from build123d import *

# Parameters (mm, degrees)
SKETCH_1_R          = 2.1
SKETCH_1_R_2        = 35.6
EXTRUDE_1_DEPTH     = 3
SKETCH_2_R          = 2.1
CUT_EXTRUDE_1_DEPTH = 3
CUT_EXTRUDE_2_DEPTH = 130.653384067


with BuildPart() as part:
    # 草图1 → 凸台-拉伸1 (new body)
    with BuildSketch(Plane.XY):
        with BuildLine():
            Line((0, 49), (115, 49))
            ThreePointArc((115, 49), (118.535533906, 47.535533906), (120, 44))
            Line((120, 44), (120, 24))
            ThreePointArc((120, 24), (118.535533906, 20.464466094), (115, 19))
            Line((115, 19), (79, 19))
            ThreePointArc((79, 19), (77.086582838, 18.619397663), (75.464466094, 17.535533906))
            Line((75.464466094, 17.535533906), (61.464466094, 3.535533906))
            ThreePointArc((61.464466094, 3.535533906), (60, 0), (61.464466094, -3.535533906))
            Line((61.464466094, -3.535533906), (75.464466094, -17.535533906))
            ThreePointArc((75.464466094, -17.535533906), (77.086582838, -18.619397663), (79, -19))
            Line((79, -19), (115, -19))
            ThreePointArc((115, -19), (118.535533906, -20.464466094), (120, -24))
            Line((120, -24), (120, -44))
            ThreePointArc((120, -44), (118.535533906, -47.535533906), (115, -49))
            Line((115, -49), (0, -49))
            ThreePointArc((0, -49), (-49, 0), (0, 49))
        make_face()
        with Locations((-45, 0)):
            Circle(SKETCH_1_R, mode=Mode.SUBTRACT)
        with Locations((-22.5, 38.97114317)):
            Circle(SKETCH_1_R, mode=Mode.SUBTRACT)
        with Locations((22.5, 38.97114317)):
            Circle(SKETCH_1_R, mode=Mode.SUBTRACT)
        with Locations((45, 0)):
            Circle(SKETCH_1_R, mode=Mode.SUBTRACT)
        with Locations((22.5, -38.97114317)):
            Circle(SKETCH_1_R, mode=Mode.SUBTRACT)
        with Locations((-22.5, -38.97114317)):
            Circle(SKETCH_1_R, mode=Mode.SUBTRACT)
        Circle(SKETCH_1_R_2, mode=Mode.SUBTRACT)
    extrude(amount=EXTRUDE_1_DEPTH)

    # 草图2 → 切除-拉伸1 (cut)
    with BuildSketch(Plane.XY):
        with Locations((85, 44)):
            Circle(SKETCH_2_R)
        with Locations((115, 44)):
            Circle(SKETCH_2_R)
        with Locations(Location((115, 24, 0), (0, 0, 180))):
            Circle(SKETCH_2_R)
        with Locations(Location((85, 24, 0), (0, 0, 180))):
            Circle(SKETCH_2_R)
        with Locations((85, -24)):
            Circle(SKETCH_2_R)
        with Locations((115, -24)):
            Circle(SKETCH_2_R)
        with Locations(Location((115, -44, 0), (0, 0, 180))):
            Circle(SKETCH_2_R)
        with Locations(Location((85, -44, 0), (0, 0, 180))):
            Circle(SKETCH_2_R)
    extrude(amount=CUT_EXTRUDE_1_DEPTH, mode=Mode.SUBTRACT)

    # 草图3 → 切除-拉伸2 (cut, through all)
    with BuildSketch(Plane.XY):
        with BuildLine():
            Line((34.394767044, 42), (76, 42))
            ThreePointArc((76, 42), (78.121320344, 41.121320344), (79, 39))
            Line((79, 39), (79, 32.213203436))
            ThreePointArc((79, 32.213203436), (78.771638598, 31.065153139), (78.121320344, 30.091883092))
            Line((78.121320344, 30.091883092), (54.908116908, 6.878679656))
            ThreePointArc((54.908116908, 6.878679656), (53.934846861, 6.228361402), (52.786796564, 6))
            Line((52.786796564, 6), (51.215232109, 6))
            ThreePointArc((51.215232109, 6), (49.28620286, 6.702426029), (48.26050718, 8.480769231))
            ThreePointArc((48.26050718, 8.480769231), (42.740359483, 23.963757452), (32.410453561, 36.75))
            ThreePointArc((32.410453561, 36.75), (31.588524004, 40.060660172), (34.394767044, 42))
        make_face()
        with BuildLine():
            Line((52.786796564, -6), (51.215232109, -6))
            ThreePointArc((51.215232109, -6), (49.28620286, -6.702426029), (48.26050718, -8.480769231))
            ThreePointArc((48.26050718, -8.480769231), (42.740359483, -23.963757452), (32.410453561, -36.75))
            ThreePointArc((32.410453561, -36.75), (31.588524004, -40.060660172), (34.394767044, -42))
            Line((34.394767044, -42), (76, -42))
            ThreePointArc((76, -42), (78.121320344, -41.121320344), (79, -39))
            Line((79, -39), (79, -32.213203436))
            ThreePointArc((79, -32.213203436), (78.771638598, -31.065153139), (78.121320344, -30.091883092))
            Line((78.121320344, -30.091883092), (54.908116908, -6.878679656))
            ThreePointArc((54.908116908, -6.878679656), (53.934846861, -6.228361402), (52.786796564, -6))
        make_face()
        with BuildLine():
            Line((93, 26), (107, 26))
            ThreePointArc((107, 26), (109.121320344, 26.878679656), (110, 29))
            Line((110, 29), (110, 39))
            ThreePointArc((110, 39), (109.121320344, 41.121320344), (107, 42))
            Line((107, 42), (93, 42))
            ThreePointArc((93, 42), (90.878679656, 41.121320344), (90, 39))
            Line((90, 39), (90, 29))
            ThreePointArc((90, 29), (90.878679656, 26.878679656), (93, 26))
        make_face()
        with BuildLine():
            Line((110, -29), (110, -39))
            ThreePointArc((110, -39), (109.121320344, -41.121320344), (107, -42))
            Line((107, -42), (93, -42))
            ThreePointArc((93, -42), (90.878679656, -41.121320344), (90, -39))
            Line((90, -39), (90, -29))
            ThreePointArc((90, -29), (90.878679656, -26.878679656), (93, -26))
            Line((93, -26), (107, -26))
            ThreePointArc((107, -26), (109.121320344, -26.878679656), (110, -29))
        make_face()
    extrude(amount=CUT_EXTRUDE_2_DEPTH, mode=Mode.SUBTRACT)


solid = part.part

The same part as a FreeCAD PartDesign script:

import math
import FreeCAD as App
import Part
import Sketcher

V = App.Vector
Q = App.Units.Quantity

doc = App.newDocument("Part")
body = doc.addObject("PartDesign::Body", "Body")

sketch1 = body.newObject("Sketcher::SketchObject", "Sketch")
sketch1.AttachmentSupport = (doc.getObject("XY_Plane"), [""])
sketch1.MapMode = "FlatFace"
sketch1.addGeometry(Part.LineSegment(V(115, 49, 0), V(0, 49, 0)), False)
sketch1.addGeometry(Part.ArcOfCircle(Part.Circle(V(0, 0, 0), V(0, 0, 1), 49), math.radians(90), math.radians(270)), False)
sketch1.addGeometry(Part.LineSegment(V(0, -49, 0), V(115, -49, 0)), False)
sketch1.addGeometry(Part.ArcOfCircle(Part.Circle(V(115, -44, 0), V(0, 0, 1), 5), math.radians(-90), math.radians(0)), False)
sketch1.addGeometry(Part.LineSegment(V(120, -44, 0), V(120, -24, 0)), False)
sketch1.addGeometry(Part.ArcOfCircle(Part.Circle(V(115, -24, 0), V(0, 0, 1), 5), math.radians(0), math.radians(90)), False)
sketch1.addGeometry(Part.LineSegment(V(115, -19, 0), V(79, -19, 0)), False)
sketch1.addGeometry(Part.ArcOfCircle(Part.Circle(V(79, -14, 0), V(0, 0, 1), 5), math.radians(-135), math.radians(-90)), False)
sketch1.addGeometry(Part.LineSegment(V(75.5, -17.5, 0), V(61.5, -3.5, 0)), False)
sketch1.addGeometry(Part.ArcOfCircle(Part.Circle(V(65, 0, 0), V(0, 0, 1), 5), math.radians(135), math.radians(225)), False)
sketch1.addGeometry(Part.LineSegment(V(61.5, 3.5, 0), V(75.5, 17.5, 0)), False)
sketch1.addGeometry(Part.ArcOfCircle(Part.Circle(V(79, 14, 0), V(0, 0, 1), 5), math.radians(90), math.radians(135)), False)
sketch1.addGeometry(Part.LineSegment(V(79, 19, 0), V(115, 19, 0)), False)
sketch1.addGeometry(Part.ArcOfCircle(Part.Circle(V(115, 24, 0), V(0, 0, 1), 5), math.radians(-90), math.radians(0)), False)
sketch1.addGeometry(Part.LineSegment(V(120, 24, 0), V(120, 44, 0)), False)
sketch1.addGeometry(Part.ArcOfCircle(Part.Circle(V(115, 44, 0), V(0, 0, 1), 5), math.radians(0), math.radians(90)), False)
sketch1.addGeometry(Part.Circle(V(22.5, -39, 0), V(0, 0, 1), 2.1), False)
sketch1.addGeometry(Part.Circle(V(-22.5, -39, 0), V(0, 0, 1), 2.1), False)
sketch1.addGeometry(Part.Circle(V(45, 0, 0), V(0, 0, 1), 2.1), False)
sketch1.addGeometry(Part.Circle(V(0, 0, 0), V(0, 0, 1), 35.6), False)
sketch1.addGeometry(Part.Circle(V(22.5, 39, 0), V(0, 0, 1), 2.1), False)
sketch1.addGeometry(Part.Circle(V(-45, 0, 0), V(0, 0, 1), 2.1), False)
sketch1.addGeometry(Part.Circle(V(-22.5, 39, 0), V(0, 0, 1), 2.1), False)
sketch1.addConstraint(Sketcher.Constraint("Tangent", 0, 2, 1, 1))
sketch1.addConstraint(Sketcher.Constraint("Tangent", 1, 2, 2, 1))
sketch1.addConstraint(Sketcher.Constraint("Tangent", 2, 2, 3, 1))
sketch1.addConstraint(Sketcher.Constraint("Tangent", 3, 2, 4, 1))
sketch1.addConstraint(Sketcher.Constraint("Tangent", 4, 2, 5, 1))
sketch1.addConstraint(Sketcher.Constraint("Tangent", 5, 2, 6, 1))
sketch1.addConstraint(Sketcher.Constraint("Tangent", 6, 2, 7, 2))
sketch1.addConstraint(Sketcher.Constraint("Tangent", 7, 1, 8, 1))
sketch1.addConstraint(Sketcher.Constraint("Tangent", 8, 2, 9, 2))
sketch1.addConstraint(Sketcher.Constraint("Tangent", 9, 1, 10, 1))
sketch1.addConstraint(Sketcher.Constraint("Tangent", 10, 2, 11, 2))
sketch1.addConstraint(Sketcher.Constraint("Tangent", 11, 1, 12, 1))
sketch1.addConstraint(Sketcher.Constraint("Tangent", 12, 2, 13, 1))
sketch1.addConstraint(Sketcher.Constraint("Tangent", 13, 2, 14, 1))
sketch1.addConstraint(Sketcher.Constraint("Tangent", 14, 2, 15, 1))
sketch1.addConstraint(Sketcher.Constraint("Tangent", 15, 2, 0, 1))
sketch1.addConstraint(Sketcher.Constraint("Horizontal", 0))
sketch1.addConstraint(Sketcher.Constraint("Horizontal", 2))
sketch1.addConstraint(Sketcher.Constraint("Vertical", 4))
sketch1.addConstraint(Sketcher.Constraint("Horizontal", 6))
sketch1.addConstraint(Sketcher.Constraint("Horizontal", 12))
sketch1.addConstraint(Sketcher.Constraint("Vertical", 14))
sketch1.addConstraint(Sketcher.Constraint("Coincident", 1, 3, -1, 1))
sketch1.addConstraint(Sketcher.Constraint("Coincident", 19, 3, -1, 1))
sketch1.addConstraint(Sketcher.Constraint("Equal", 3, 5))
sketch1.addConstraint(Sketcher.Constraint("Equal", 5, 7))
sketch1.addConstraint(Sketcher.Constraint("Equal", 7, 9))
sketch1.addConstraint(Sketcher.Constraint("Equal", 9, 11))
sketch1.addConstraint(Sketcher.Constraint("Equal", 11, 13))
sketch1.addConstraint(Sketcher.Constraint("Equal", 13, 15))
sketch1.addConstraint(Sketcher.Constraint("Equal", 16, 17))
sketch1.addConstraint(Sketcher.Constraint("Equal", 17, 18))
sketch1.addConstraint(Sketcher.Constraint("Equal", 18, 20))
sketch1.addConstraint(Sketcher.Constraint("Equal", 20, 21))
sketch1.addConstraint(Sketcher.Constraint("Equal", 21, 22))
sketch1.addConstraint(Sketcher.Constraint("Symmetric", 17, 3, 20, 3, -1, 1))
sketch1.addConstraint(Sketcher.Constraint("Symmetric", 18, 3, 21, 3, -1, 1))
sketch1.addConstraint(Sketcher.Constraint("Symmetric", 16, 3, 22, 3, -1, 1))
sketch1.addConstraint(Sketcher.Constraint("Symmetric", 16, 3, 17, 3, -2))
sketch1.addConstraint(Sketcher.Constraint("Symmetric", 7, 3, 11, 3, -1))
sketch1.addConstraint(Sketcher.Constraint("PointOnObject", 9, 3, -1))
sketch1.addConstraint(Sketcher.Constraint("PointOnObject", 18, 3, -1))
sketch1.addConstraint(Sketcher.Constraint("Perpendicular", 8, 10))
sketch1.addConstraint(Sketcher.Constraint("Vertical", 5, 3, 13, 3))
sketch1.addConstraint(Sketcher.Constraint("Radius", 1, Q("49 mm")))
sketch1.addConstraint(Sketcher.Constraint("Radius", 3, Q("5 mm")))
sketch1.addConstraint(Sketcher.Constraint("Diameter", 16, Q("4.2 mm")))
sketch1.addConstraint(Sketcher.Constraint("Diameter", 19, Q("71.2 mm")))
sketch1.addConstraint(Sketcher.Constraint("DistanceX", 0, 2, 0, 1, Q("115 mm")))
sketch1.addConstraint(Sketcher.Constraint("DistanceX", 6, 2, 6, 1, Q("36 mm")))
sketch1.addConstraint(Sketcher.Constraint("DistanceY", 4, 1, 4, 2, Q("20 mm")))
sketch1.addConstraint(Sketcher.Constraint("DistanceX", -1, 1, 18, 3, Q("45 mm")))
sketch1.addConstraint(Sketcher.Constraint("DistanceX", 17, 3, 16, 3, Q("45 mm")))
sketch1.addConstraint(Sketcher.Constraint("DistanceY", 16, 3, -1, 1, Q("38.971143 mm")))
pad1 = body.newObject("PartDesign::Pad", "Pad")
pad1.Profile = sketch1
pad1.Length = 3

sketch2 = body.newObject("Sketcher::SketchObject", "Sketch001")
sketch2.AttachmentSupport = (doc.getObject("XY_Plane"), [""])
sketch2.MapMode = "FlatFace"
sketch2.addGeometry(Part.Circle(V(85, 44, 0), V(0, 0, 1), 2.1), False)
sketch2.addGeometry(Part.Circle(V(115, 44, 0), V(0, 0, 1), 2.1), False)
sketch2.addGeometry(Part.Circle(V(115, 24, 0), V(0, 0, 1), 2.1), False)
sketch2.addGeometry(Part.Circle(V(85, 24, 0), V(0, 0, 1), 2.1), False)
sketch2.addGeometry(Part.Circle(V(85, -24, 0), V(0, 0, 1), 2.1), False)
sketch2.addGeometry(Part.Circle(V(115, -24, 0), V(0, 0, 1), 2.1), False)
sketch2.addGeometry(Part.Circle(V(115, -44, 0), V(0, 0, 1), 2.1), False)
sketch2.addGeometry(Part.Circle(V(85, -44, 0), V(0, 0, 1), 2.1), False)
sketch2.addConstraint(Sketcher.Constraint("Equal", 0, 1))
sketch2.addConstraint(Sketcher.Constraint("Equal", 1, 2))
sketch2.addConstraint(Sketcher.Constraint("Equal", 2, 3))
sketch2.addConstraint(Sketcher.Constraint("Equal", 3, 4))
sketch2.addConstraint(Sketcher.Constraint("Equal", 4, 5))
sketch2.addConstraint(Sketcher.Constraint("Equal", 5, 6))
sketch2.addConstraint(Sketcher.Constraint("Equal", 6, 7))
sketch2.addConstraint(Sketcher.Constraint("Symmetric", 3, 3, 4, 3, -1))
sketch2.addConstraint(Sketcher.Constraint("Symmetric", 2, 3, 5, 3, -1))
sketch2.addConstraint(Sketcher.Constraint("Symmetric", 1, 3, 6, 3, -1))
sketch2.addConstraint(Sketcher.Constraint("Symmetric", 0, 3, 7, 3, -1))
sketch2.addConstraint(Sketcher.Constraint("Horizontal", 0, 3, 1, 3))
sketch2.addConstraint(Sketcher.Constraint("Horizontal", 2, 3, 3, 3))
sketch2.addConstraint(Sketcher.Constraint("Vertical", 1, 3, 2, 3))
sketch2.addConstraint(Sketcher.Constraint("Vertical", 0, 3, 3, 3))
sketch2.addConstraint(Sketcher.Constraint("Diameter", 0, Q("4.2 mm")))
sketch2.addConstraint(Sketcher.Constraint("DistanceX", -1, 1, 0, 3, Q("85 mm")))
sketch2.addConstraint(Sketcher.Constraint("DistanceY", -1, 1, 0, 3, Q("44 mm")))
sketch2.addConstraint(Sketcher.Constraint("DistanceX", -1, 1, 1, 3, Q("115 mm")))
sketch2.addConstraint(Sketcher.Constraint("DistanceY", -1, 1, 2, 3, Q("24 mm")))
pocket1 = body.newObject("PartDesign::Pocket", "Pocket")
pocket1.Profile = sketch2
pocket1.Length = 3
pocket1.Reversed = True

sketch3 = body.newObject("Sketcher::SketchObject", "Sketch002")
sketch3.AttachmentSupport = (doc.getObject("XY_Plane"), [""])
sketch3.MapMode = "FlatFace"
sketch3.addGeometry(Part.LineSegment(V(76, 42, 0), V(34.4, 42, 0)), False)
sketch3.addGeometry(Part.ArcOfCircle(Part.Circle(V(34.4, 39, 0), V(0, 0, 1), 3), math.radians(90), math.radians(229)), False)
sketch3.addGeometry(Part.ArcOfCircle(Part.Circle(V(0, 0, 0), V(0, 0, 1), 49), math.radians(10), math.radians(49)), False)
sketch3.addGeometry(Part.ArcOfCircle(Part.Circle(V(51.2, 9, 0), V(0, 0, 1), 3), math.radians(-170), math.radians(-90)), False)
sketch3.addGeometry(Part.LineSegment(V(51.2, 6, 0), V(52.8, 6, 0)), False)
sketch3.addGeometry(Part.ArcOfCircle(Part.Circle(V(52.8, 9, 0), V(0, 0, 1), 3), math.radians(-90), math.radians(-45)), False)
sketch3.addGeometry(Part.LineSegment(V(54.9, 6.9, 0), V(78.1, 30.1, 0)), False)
sketch3.addGeometry(Part.ArcOfCircle(Part.Circle(V(76, 32.2, 0), V(0, 0, 1), 3), math.radians(-45), math.radians(0)), False)
sketch3.addGeometry(Part.LineSegment(V(79, 32.2, 0), V(79, 39, 0)), False)
sketch3.addGeometry(Part.ArcOfCircle(Part.Circle(V(76, 39, 0), V(0, 0, 1), 3), math.radians(0), math.radians(90)), False)
sketch3.addGeometry(Part.LineSegment(V(52.8, -6, 0), V(51.2, -6, 0)), False)
sketch3.addGeometry(Part.ArcOfCircle(Part.Circle(V(51.2, -9, 0), V(0, 0, 1), 3), math.radians(90), math.radians(170)), False)
sketch3.addGeometry(Part.ArcOfCircle(Part.Circle(V(0, 0, 0), V(0, 0, 1), 49), math.radians(-49), math.radians(-10)), False)
sketch3.addGeometry(Part.ArcOfCircle(Part.Circle(V(34.4, -39, 0), V(0, 0, 1), 3), math.radians(131), math.radians(270)), False)
sketch3.addGeometry(Part.LineSegment(V(34.4, -42, 0), V(76, -42, 0)), False)
sketch3.addGeometry(Part.ArcOfCircle(Part.Circle(V(76, -39, 0), V(0, 0, 1), 3), math.radians(-90), math.radians(0)), False)
sketch3.addGeometry(Part.LineSegment(V(79, -39, 0), V(79, -32.2, 0)), False)
sketch3.addGeometry(Part.ArcOfCircle(Part.Circle(V(76, -32.2, 0), V(0, 0, 1), 3), math.radians(0), math.radians(45)), False)
sketch3.addGeometry(Part.LineSegment(V(78.1, -30.1, 0), V(54.9, -6.9, 0)), False)
sketch3.addGeometry(Part.ArcOfCircle(Part.Circle(V(52.8, -9, 0), V(0, 0, 1), 3), math.radians(45), math.radians(90)), False)
sketch3.addGeometry(Part.LineSegment(V(93, 26, 0), V(107, 26, 0)), False)
sketch3.addGeometry(Part.ArcOfCircle(Part.Circle(V(107, 29, 0), V(0, 0, 1), 3), math.radians(-90), math.radians(0)), False)
sketch3.addGeometry(Part.LineSegment(V(110, 29, 0), V(110, 39, 0)), False)
sketch3.addGeometry(Part.ArcOfCircle(Part.Circle(V(107, 39, 0), V(0, 0, 1), 3), math.radians(0), math.radians(90)), False)
sketch3.addGeometry(Part.LineSegment(V(107, 42, 0), V(93, 42, 0)), False)
sketch3.addGeometry(Part.ArcOfCircle(Part.Circle(V(93, 39, 0), V(0, 0, 1), 3), math.radians(90), math.radians(180)), False)
sketch3.addGeometry(Part.LineSegment(V(90, 39, 0), V(90, 29, 0)), False)
sketch3.addGeometry(Part.ArcOfCircle(Part.Circle(V(93, 29, 0), V(0, 0, 1), 3), math.radians(180), math.radians(270)), False)
sketch3.addGeometry(Part.LineSegment(V(110, -39, 0), V(110, -29, 0)), False)
sketch3.addGeometry(Part.ArcOfCircle(Part.Circle(V(107, -29, 0), V(0, 0, 1), 3), math.radians(0), math.radians(90)), False)
sketch3.addGeometry(Part.LineSegment(V(107, -26, 0), V(93, -26, 0)), False)
sketch3.addGeometry(Part.ArcOfCircle(Part.Circle(V(93, -29, 0), V(0, 0, 1), 3), math.radians(90), math.radians(180)), False)
sketch3.addGeometry(Part.LineSegment(V(90, -29, 0), V(90, -39, 0)), False)
sketch3.addGeometry(Part.ArcOfCircle(Part.Circle(V(93, -39, 0), V(0, 0, 1), 3), math.radians(180), math.radians(270)), False)
sketch3.addGeometry(Part.LineSegment(V(93, -42, 0), V(107, -42, 0)), False)
sketch3.addGeometry(Part.ArcOfCircle(Part.Circle(V(107, -39, 0), V(0, 0, 1), 3), math.radians(-90), math.radians(0)), False)
sketch3.addConstraint(Sketcher.Constraint("Tangent", 0, 2, 1, 1))
sketch3.addConstraint(Sketcher.Constraint("Tangent", 1, 2, 2, 2))
sketch3.addConstraint(Sketcher.Constraint("Tangent", 2, 1, 3, 1))
sketch3.addConstraint(Sketcher.Constraint("Tangent", 3, 2, 4, 1))
sketch3.addConstraint(Sketcher.Constraint("Tangent", 4, 2, 5, 1))
sketch3.addConstraint(Sketcher.Constraint("Tangent", 5, 2, 6, 1))
sketch3.addConstraint(Sketcher.Constraint("Tangent", 6, 2, 7, 1))
sketch3.addConstraint(Sketcher.Constraint("Tangent", 7, 2, 8, 1))
sketch3.addConstraint(Sketcher.Constraint("Tangent", 8, 2, 9, 1))
sketch3.addConstraint(Sketcher.Constraint("Tangent", 9, 2, 0, 1))
sketch3.addConstraint(Sketcher.Constraint("Tangent", 10, 2, 11, 1))
sketch3.addConstraint(Sketcher.Constraint("Tangent", 11, 2, 12, 2))
sketch3.addConstraint(Sketcher.Constraint("Tangent", 12, 1, 13, 1))
sketch3.addConstraint(Sketcher.Constraint("Tangent", 13, 2, 14, 1))
sketch3.addConstraint(Sketcher.Constraint("Tangent", 14, 2, 15, 1))
sketch3.addConstraint(Sketcher.Constraint("Tangent", 15, 2, 16, 1))
sketch3.addConstraint(Sketcher.Constraint("Tangent", 16, 2, 17, 1))
sketch3.addConstraint(Sketcher.Constraint("Tangent", 17, 2, 18, 1))
sketch3.addConstraint(Sketcher.Constraint("Tangent", 18, 2, 19, 1))
sketch3.addConstraint(Sketcher.Constraint("Tangent", 19, 2, 10, 1))
sketch3.addConstraint(Sketcher.Constraint("Tangent", 20, 2, 21, 1))
sketch3.addConstraint(Sketcher.Constraint("Tangent", 21, 2, 22, 1))
sketch3.addConstraint(Sketcher.Constraint("Tangent", 22, 2, 23, 1))
sketch3.addConstraint(Sketcher.Constraint("Tangent", 23, 2, 24, 1))
sketch3.addConstraint(Sketcher.Constraint("Tangent", 24, 2, 25, 1))
sketch3.addConstraint(Sketcher.Constraint("Tangent", 25, 2, 26, 1))
sketch3.addConstraint(Sketcher.Constraint("Tangent", 26, 2, 27, 1))
sketch3.addConstraint(Sketcher.Constraint("Tangent", 27, 2, 20, 1))
sketch3.addConstraint(Sketcher.Constraint("Tangent", 28, 2, 29, 1))
sketch3.addConstraint(Sketcher.Constraint("Tangent", 29, 2, 30, 1))
sketch3.addConstraint(Sketcher.Constraint("Tangent", 30, 2, 31, 1))
sketch3.addConstraint(Sketcher.Constraint("Tangent", 31, 2, 32, 1))
sketch3.addConstraint(Sketcher.Constraint("Tangent", 32, 2, 33, 1))
sketch3.addConstraint(Sketcher.Constraint("Tangent", 33, 2, 34, 1))
sketch3.addConstraint(Sketcher.Constraint("Tangent", 34, 2, 35, 1))
sketch3.addConstraint(Sketcher.Constraint("Tangent", 35, 2, 28, 1))
sketch3.addConstraint(Sketcher.Constraint("Horizontal", 0))
sketch3.addConstraint(Sketcher.Constraint("Horizontal", 4))
sketch3.addConstraint(Sketcher.Constraint("Vertical", 8))
sketch3.addConstraint(Sketcher.Constraint("Horizontal", 10))
sketch3.addConstraint(Sketcher.Constraint("Horizontal", 14))
sketch3.addConstraint(Sketcher.Constraint("Vertical", 16))
sketch3.addConstraint(Sketcher.Constraint("Horizontal", 20))
sketch3.addConstraint(Sketcher.Constraint("Vertical", 22))
sketch3.addConstraint(Sketcher.Constraint("Horizontal", 24))
sketch3.addConstraint(Sketcher.Constraint("Vertical", 26))
sketch3.addConstraint(Sketcher.Constraint("Vertical", 28))
sketch3.addConstraint(Sketcher.Constraint("Horizontal", 30))
sketch3.addConstraint(Sketcher.Constraint("Vertical", 32))
sketch3.addConstraint(Sketcher.Constraint("Horizontal", 34))
sketch3.addConstraint(Sketcher.Constraint("Coincident", 2, 3, -1, 1))
sketch3.addConstraint(Sketcher.Constraint("Coincident", 12, 3, -1, 1))
sketch3.addConstraint(Sketcher.Constraint("Equal", 1, 3))
sketch3.addConstraint(Sketcher.Constraint("Equal", 3, 5))
sketch3.addConstraint(Sketcher.Constraint("Equal", 5, 7))
sketch3.addConstraint(Sketcher.Constraint("Equal", 7, 9))
sketch3.addConstraint(Sketcher.Constraint("Equal", 9, 11))
sketch3.addConstraint(Sketcher.Constraint("Equal", 2, 12))
sketch3.addConstraint(Sketcher.Constraint("Equal", 11, 13))
sketch3.addConstraint(Sketcher.Constraint("Equal", 13, 15))
sketch3.addConstraint(Sketcher.Constraint("Equal", 15, 17))
sketch3.addConstraint(Sketcher.Constraint("Equal", 17, 19))
sketch3.addConstraint(Sketcher.Constraint("Equal", 19, 21))
sketch3.addConstraint(Sketcher.Constraint("Equal", 21, 23))
sketch3.addConstraint(Sketcher.Constraint("Equal", 23, 25))
sketch3.addConstraint(Sketcher.Constraint("Equal", 25, 27))
sketch3.addConstraint(Sketcher.Constraint("Equal", 27, 29))
sketch3.addConstraint(Sketcher.Constraint("Equal", 29, 31))
sketch3.addConstraint(Sketcher.Constraint("Equal", 31, 33))
sketch3.addConstraint(Sketcher.Constraint("Equal", 33, 35))
sketch3.addConstraint(Sketcher.Constraint("Symmetric", 9, 3, 15, 3, -1))
sketch3.addConstraint(Sketcher.Constraint("Symmetric", 5, 3, 19, 3, -1))
sketch3.addConstraint(Sketcher.Constraint("Symmetric", 21, 3, 29, 3, -1))
sketch3.addConstraint(Sketcher.Constraint("Symmetric", 25, 3, 33, 3, -1))
sketch3.addConstraint(Sketcher.Constraint("Perpendicular", 6, 18))
sketch3.addConstraint(Sketcher.Constraint("Horizontal", 9, 3, 23, 3))
sketch3.addConstraint(Sketcher.Constraint("Vertical", 6, 2, 17, 2))
sketch3.addConstraint(Sketcher.Constraint("Radius", 1, Q("3 mm")))
sketch3.addConstraint(Sketcher.Constraint("Radius", 2, Q("49 mm")))
sketch3.addConstraint(Sketcher.Constraint("DistanceX", 20, 1, 20, 2, Q("14 mm")))
sketch3.addConstraint(Sketcher.Constraint("DistanceY", 22, 1, 22, 2, Q("10 mm")))
sketch3.addConstraint(Sketcher.Constraint("DistanceY", -1, 1, 1, 3, Q("39 mm")))
sketch3.addConstraint(Sketcher.Constraint("DistanceY", -1, 1, 3, 3, Q("9 mm")))
sketch3.addConstraint(Sketcher.Constraint("DistanceX", -1, 1, 7, 3, Q("76 mm")))
sketch3.addConstraint(Sketcher.Constraint("DistanceX", -1, 1, 21, 3, Q("107 mm")))
sketch3.addConstraint(Sketcher.Constraint("DistanceX", 4, 1, 4, 2, Q("1.571564 mm")))
pocket2 = body.newObject("PartDesign::Pocket", "Pocket001")
pocket2.Profile = sketch3
pocket2.Type = "ThroughAll"
pocket2.Reversed = True

doc.recompute()
